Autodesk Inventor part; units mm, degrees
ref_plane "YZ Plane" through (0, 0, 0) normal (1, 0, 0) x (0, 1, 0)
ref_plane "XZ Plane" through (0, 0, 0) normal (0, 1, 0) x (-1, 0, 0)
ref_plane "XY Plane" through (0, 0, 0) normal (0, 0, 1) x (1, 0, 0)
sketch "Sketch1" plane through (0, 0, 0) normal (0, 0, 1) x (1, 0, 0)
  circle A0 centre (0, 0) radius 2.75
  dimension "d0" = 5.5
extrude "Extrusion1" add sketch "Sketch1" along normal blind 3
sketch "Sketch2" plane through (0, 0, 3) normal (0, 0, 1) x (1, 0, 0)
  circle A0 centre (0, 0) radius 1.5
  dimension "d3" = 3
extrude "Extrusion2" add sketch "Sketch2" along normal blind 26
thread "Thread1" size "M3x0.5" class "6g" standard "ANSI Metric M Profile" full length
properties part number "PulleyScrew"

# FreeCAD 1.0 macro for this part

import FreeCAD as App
import Part
import Sketcher
Q = App.Units.Quantity

doc = App.newDocument("Part")
params = doc.addObject("Spreadsheet::Sheet", "Params")
for row, (alias, value) in enumerate([
    ("sketch1_diameter", "5.5 mm"),
    ("pad1_length", "3 mm"),
    ("sketch2_diameter", "3 mm"),
    ("pad2_length", "26 mm"),
], start=1):
    params.set(f"A{row}", alias)
    params.set(f"B{row}", "=" + value)
    params.setAlias(f"B{row}", alias)

body = doc.addObject("PartDesign::Body", "Body")

# Sketch on XY plane
sketch1 = body.newObject("Sketcher::SketchObject", "Sketch")
sketch1.AttachmentSupport = (doc.getObject("XY_Plane"), [""])
sketch1.MapMode = "FlatFace"
sketch1.addGeometry(Part.Circle(App.Vector(0, 0, 0), App.Vector(0, 0, 1), 2.8), False)
sketch1.addConstraint([
    Sketcher.Constraint("Coincident", 0, 3, -1, 1),
    Sketcher.Constraint("Diameter", 0, Q("5.5 mm")),
])
sketch1.setExpression("Constraints[1]", "Params.sketch1_diameter")
pad1 = body.newObject("PartDesign::Pad", "Pad")
pad1.Profile = sketch1
pad1.setExpression("Length", "Params.pad1_length")

# Sketch on XY plane
sketch2 = body.newObject("Sketcher::SketchObject", "Sketch001")
sketch2.AttachmentSupport = (doc.getObject("XY_Plane"), [""])
sketch2.MapMode = "FlatFace"
sketch2.AttachmentOffset = App.Placement(App.Vector(0, 0, 3), App.Rotation())
sketch2.addGeometry(Part.Circle(App.Vector(0, 0, 0), App.Vector(0, 0, 1), 1.5), False)
sketch2.addConstraint([
    Sketcher.Constraint("Coincident", 0, 3, -1, 1),
    Sketcher.Constraint("Diameter", 0, Q("3 mm")),
])
sketch2.setExpression("Constraints[1]", "Params.sketch2_diameter")
pad2 = body.newObject("PartDesign::Pad", "Pad001")
pad2.Profile = sketch2
pad2.setExpression("Length", "Params.pad2_length")

doc.recompute()
